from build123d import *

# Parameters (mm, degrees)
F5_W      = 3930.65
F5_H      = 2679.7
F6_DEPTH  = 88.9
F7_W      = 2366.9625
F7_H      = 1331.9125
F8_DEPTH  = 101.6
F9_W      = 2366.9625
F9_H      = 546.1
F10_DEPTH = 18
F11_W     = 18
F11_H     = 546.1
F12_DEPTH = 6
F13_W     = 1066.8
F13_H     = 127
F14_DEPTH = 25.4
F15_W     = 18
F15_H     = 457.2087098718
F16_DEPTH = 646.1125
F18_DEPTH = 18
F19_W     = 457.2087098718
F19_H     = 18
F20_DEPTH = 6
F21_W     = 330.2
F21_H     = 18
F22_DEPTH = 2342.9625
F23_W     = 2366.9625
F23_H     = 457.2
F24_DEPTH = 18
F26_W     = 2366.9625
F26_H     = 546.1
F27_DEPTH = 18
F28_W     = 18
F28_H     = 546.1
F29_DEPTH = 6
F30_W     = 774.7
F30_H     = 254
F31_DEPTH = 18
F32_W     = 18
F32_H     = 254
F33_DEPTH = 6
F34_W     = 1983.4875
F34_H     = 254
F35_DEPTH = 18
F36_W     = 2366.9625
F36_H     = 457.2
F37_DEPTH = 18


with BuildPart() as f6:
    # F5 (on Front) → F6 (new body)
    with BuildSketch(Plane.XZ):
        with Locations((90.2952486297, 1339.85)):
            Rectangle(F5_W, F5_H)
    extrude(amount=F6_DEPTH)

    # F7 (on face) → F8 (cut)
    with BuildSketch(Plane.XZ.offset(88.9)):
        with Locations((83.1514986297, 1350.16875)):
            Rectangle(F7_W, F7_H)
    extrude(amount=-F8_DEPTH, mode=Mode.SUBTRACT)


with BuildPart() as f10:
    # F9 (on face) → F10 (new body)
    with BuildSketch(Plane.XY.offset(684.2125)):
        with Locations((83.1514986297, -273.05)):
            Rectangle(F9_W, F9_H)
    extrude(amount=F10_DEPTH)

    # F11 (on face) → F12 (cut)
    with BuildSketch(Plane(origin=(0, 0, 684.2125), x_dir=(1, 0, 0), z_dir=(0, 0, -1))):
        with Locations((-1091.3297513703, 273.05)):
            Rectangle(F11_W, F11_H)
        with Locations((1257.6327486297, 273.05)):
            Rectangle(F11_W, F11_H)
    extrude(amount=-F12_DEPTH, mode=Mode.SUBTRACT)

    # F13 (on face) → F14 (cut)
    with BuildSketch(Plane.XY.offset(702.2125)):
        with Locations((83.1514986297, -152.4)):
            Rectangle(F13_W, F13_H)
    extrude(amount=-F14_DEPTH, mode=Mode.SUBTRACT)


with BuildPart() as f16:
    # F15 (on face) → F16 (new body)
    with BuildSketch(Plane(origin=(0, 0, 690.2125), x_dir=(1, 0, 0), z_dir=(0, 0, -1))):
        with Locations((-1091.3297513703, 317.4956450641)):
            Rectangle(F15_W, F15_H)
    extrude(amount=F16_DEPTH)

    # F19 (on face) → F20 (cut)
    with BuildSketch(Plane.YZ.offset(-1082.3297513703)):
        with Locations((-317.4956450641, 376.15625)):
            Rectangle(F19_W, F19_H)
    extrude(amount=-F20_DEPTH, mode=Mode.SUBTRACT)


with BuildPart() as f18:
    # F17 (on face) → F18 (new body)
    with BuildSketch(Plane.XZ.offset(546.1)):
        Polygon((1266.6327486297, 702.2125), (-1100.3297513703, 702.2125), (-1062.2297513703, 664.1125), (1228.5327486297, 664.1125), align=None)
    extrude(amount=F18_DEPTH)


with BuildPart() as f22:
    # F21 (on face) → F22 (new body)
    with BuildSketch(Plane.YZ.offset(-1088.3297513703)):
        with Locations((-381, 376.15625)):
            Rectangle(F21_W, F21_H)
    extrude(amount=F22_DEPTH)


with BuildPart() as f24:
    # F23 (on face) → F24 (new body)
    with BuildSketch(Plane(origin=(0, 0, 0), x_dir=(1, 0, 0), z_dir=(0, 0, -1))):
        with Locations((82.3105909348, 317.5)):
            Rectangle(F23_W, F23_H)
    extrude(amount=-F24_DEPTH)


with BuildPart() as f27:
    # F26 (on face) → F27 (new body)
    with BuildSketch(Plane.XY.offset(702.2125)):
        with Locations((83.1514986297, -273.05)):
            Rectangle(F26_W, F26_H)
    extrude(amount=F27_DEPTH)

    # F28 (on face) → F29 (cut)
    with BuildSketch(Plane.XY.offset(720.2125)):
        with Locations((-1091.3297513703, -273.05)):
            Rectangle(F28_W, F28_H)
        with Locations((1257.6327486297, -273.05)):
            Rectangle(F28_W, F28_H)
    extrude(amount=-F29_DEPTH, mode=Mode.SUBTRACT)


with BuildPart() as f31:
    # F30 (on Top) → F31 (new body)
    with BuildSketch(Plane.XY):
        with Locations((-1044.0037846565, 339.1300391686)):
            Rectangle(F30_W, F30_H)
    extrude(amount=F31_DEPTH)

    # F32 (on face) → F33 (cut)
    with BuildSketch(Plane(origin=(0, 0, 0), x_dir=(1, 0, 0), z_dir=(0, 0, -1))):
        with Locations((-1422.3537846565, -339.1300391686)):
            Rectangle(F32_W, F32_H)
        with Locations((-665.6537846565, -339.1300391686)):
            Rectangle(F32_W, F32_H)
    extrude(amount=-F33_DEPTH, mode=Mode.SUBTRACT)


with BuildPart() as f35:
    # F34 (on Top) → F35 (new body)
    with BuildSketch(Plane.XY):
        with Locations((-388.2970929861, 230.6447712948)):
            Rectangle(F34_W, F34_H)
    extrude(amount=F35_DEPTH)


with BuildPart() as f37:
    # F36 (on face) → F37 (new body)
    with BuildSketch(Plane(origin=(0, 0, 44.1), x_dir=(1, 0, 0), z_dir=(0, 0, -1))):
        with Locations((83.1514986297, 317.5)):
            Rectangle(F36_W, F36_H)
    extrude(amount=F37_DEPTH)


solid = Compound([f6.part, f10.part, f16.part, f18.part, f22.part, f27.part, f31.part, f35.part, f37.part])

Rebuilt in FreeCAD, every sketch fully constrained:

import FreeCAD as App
import Part
import Sketcher

V = App.Vector
Q = App.Units.Quantity


def add_polygon(sketch, points):
    """Adds a closed chain of lines whose ends are joined by coincident constraints."""
    first, n = sketch.GeometryCount, len(points)
    for a, b in zip(points, points[1:] + points[:1]):
        sketch.addGeometry(Part.LineSegment(App.Vector(*a, 0), App.Vector(*b, 0)), False)
    for i in range(n):
        sketch.addConstraint(Sketcher.Constraint("Coincident", first + i, 2, first + (i + 1) % n, 1))

doc = App.newDocument("Part")
body = doc.addObject("PartDesign::Body", "Body")

sketch1 = body.newObject("Sketcher::SketchObject", "Sketch")
sketch1.AttachmentSupport = (doc.getObject("XZ_Plane"), [""])
sketch1.MapMode = "FlatFace"
add_polygon(sketch1, [(-1875, 2680), (-1875, 0), (2056, 0), (2056, 2680)])
sketch1.addConstraint(Sketcher.Constraint("Vertical", 0))
sketch1.addConstraint(Sketcher.Constraint("Horizontal", 1))
sketch1.addConstraint(Sketcher.Constraint("Vertical", 2))
sketch1.addConstraint(Sketcher.Constraint("Horizontal", 3))
sketch1.addConstraint(Sketcher.Constraint("PointOnObject", 0, 2, -1))
sketch1.addConstraint(Sketcher.Constraint("DistanceY", 0, 2, 0, 1, Q("105.5 in")))
sketch1.addConstraint(Sketcher.Constraint("DistanceX", 1, 1, 1, 2, Q("154.75 in")))
sketch1.addConstraint(Sketcher.Constraint("DistanceX", 0, 2, -1, 1, 1875.029751))
pad1 = body.newObject("PartDesign::Pad", "Pad")
pad1.Profile = sketch1
pad1.Length = Q("3.5 in")

sketch2 = body.newObject("Sketcher::SketchObject", "Sketch001")
sketch2.AttachmentSupport = (doc.getObject("XZ_Plane"), [""])
sketch2.MapMode = "FlatFace"
sketch2.AttachmentOffset = App.Placement(V(0, 0, 3.5 * 25.4), App.Rotation())
add_polygon(sketch2, [(-1100, 2016), (-1100, 684), (1267, 684), (1267, 2016)])
sketch2.addConstraint(Sketcher.Constraint("Vertical", 0))
sketch2.addConstraint(Sketcher.Constraint("Horizontal", 1))
sketch2.addConstraint(Sketcher.Constraint("Vertical", 2))
sketch2.addConstraint(Sketcher.Constraint("Horizontal", 3))
sketch2.addConstraint(Sketcher.Constraint("DistanceX", 1, 1, 1, 2, Q("93.1875 in")))
sketch2.addConstraint(Sketcher.Constraint("DistanceY", 0, 2, 0, 1, Q("52.4375 in")))
sketch2.addConstraint(Sketcher.Constraint("DistanceY", -1, 1, 0, 2, Q("26.9375 in")))
sketch2.addConstraint(Sketcher.Constraint("DistanceX", 0, 2, -1, 1, 1100.329751))
pocket1 = body.newObject("PartDesign::Pocket", "Pocket")
pocket1.Profile = sketch2
pocket1.Length = Q("4 in")
body2 = doc.addObject("PartDesign::Body", "Body001")

sketch3 = body2.newObject("Sketcher::SketchObject", "Sketch002")
sketch3.AttachmentSupport = (doc.getObject("XY_Plane001"), [""])
sketch3.MapMode = "FlatFace"
sketch3.AttachmentOffset = App.Placement(V(0, 0, 26.9375 * 25.4), App.Rotation())
add_polygon(sketch3, [(-1100, 0), (-1100, -546), (1267, -546), (1267, 0)])
sketch3.addConstraint(Sketcher.Constraint("Vertical", 0))
sketch3.addConstraint(Sketcher.Constraint("Horizontal", 1))
sketch3.addConstraint(Sketcher.Constraint("Vertical", 2))
sketch3.addConstraint(Sketcher.Constraint("Horizontal", 3))
sketch3.addConstraint(Sketcher.Constraint("PointOnObject", 2, 2, -1))
sketch3.addConstraint(Sketcher.Constraint("DistanceY", 0, 2, 0, 1, Q("21.5 in")))
sketch3.addConstraint(Sketcher.Constraint("DistanceX", 1, 1, 1, 2, Q("93.1875 in")))
sketch3.addConstraint(Sketcher.Constraint("DistanceX", 0, 2, -1, 1, 1100.329751))
pad2 = body2.newObject("PartDesign::Pad", "Pad001")
pad2.Profile = sketch3
pad2.Length = 18

sketch4 = body2.newObject("Sketcher::SketchObject", "Sketch003")
sketch4.AttachmentSupport = (doc.getObject("XY_Plane001"), [""])
sketch4.MapMode = "FlatFace"
sketch4.AttachmentOffset = App.Placement(V(0, 0, 26.9375 * 25.4), App.Rotation())
add_polygon(sketch4, [(-1100, -546), (-1100, 0), (-1082, 0), (-1082, -546)])
add_polygon(sketch4, [(1249, -546), (1249, 0), (1267, 0), (1267, -546)])
sketch4.addConstraint(Sketcher.Constraint("Vertical", 0))
sketch4.addConstraint(Sketcher.Constraint("Horizontal", 1))
sketch4.addConstraint(Sketcher.Constraint("Vertical", 2))
sketch4.addConstraint(Sketcher.Constraint("Horizontal", 3))
sketch4.addConstraint(Sketcher.Constraint("Vertical", 4))
sketch4.addConstraint(Sketcher.Constraint("Horizontal", 5))
sketch4.addConstraint(Sketcher.Constraint("Vertical", 6))
sketch4.addConstraint(Sketcher.Constraint("Horizontal", 7))
sketch4.addConstraint(Sketcher.Constraint("PointOnObject", 0, 2, -1))
sketch4.addConstraint(Sketcher.Constraint("PointOnObject", 4, 2, -1))
sketch4.addConstraint(Sketcher.Constraint("Horizontal", 3, 2, 6, 2))
sketch4.addConstraint(Sketcher.Constraint("Equal", 3, 5))
sketch4.addConstraint(Sketcher.Constraint("DistanceY", 0, 1, 0, 2, Q("21.5 in")))
sketch4.addConstraint(Sketcher.Constraint("DistanceX", 0, 2, 5, 2, Q("93.1875 in")))
sketch4.addConstraint(Sketcher.Constraint("DistanceX", 1, 1, 1, 2, 18.0))
sketch4.addConstraint(Sketcher.Constraint("DistanceX", 0, 2, -1, 1, 1100.329751))
pocket2 = body2.newObject("PartDesign::Pocket", "Pocket001")
pocket2.Profile = sketch4
pocket2.Length = 6
pocket2.Reversed = True

sketch5 = body2.newObject("Sketcher::SketchObject", "Sketch004")
sketch5.AttachmentSupport = (doc.getObject("XY_Plane001"), [""])
sketch5.MapMode = "FlatFace"
sketch5.AttachmentOffset = App.Placement(V(0, 0, 702.2125), App.Rotation())
add_polygon(sketch5, [(-450, -89), (-450, -216), (617, -216), (617, -89)])
sketch5.addConstraint(Sketcher.Constraint("Vertical", 0))
sketch5.addConstraint(Sketcher.Constraint("Horizontal", 1))
sketch5.addConstraint(Sketcher.Constraint("Vertical", 2))
sketch5.addConstraint(Sketcher.Constraint("Horizontal", 3))
sketch5.addConstraint(Sketcher.Constraint("DistanceX", 1, 1, 1, 2, Q("42 in")))
sketch5.addConstraint(Sketcher.Constraint("DistanceY", 0, 2, 0, 1, Q("5 in")))
sketch5.addConstraint(Sketcher.Constraint("DistanceY", 0, 2, -1, 1, Q("8.5 in")))
sketch5.addConstraint(Sketcher.Constraint("DistanceX", 0, 2, -1, 1, 450.248501))
pocket3 = body2.newObject("PartDesign::Pocket", "Pocket002")
pocket3.Profile = sketch5
pocket3.Length = Q("1 in")
body3 = doc.addObject("PartDesign::Body", "Body002")

sketch6 = body3.newObject("Sketcher::SketchObject", "Sketch005")
sketch6.AttachmentSupport = (doc.getObject("XY_Plane002"), [""])
sketch6.MapMode = "FlatFace"
sketch6.AttachmentOffset = App.Placement(V(0, 0, 690.2125), App.Rotation())
add_polygon(sketch6, [(-1100, -546), (-1100, -89), (-1082, -89), (-1082, -546)])
sketch6.addConstraint(Sketcher.Constraint("Vertical", 0))
sketch6.addConstraint(Sketcher.Constraint("Horizontal", 1))
sketch6.addConstraint(Sketcher.Constraint("Vertical", 2))
sketch6.addConstraint(Sketcher.Constraint("Horizontal", 3))
sketch6.addConstraint(Sketcher.Constraint("DistanceY", 2, 2, -1, 1, Q("21.5 in")))
sketch6.addConstraint(Sketcher.Constraint("DistanceX", 1, 1, 1, 2, 18.0))
sketch6.addConstraint(Sketcher.Constraint("DistanceY", 0, 1, 0, 2, 457.20871))
sketch6.addConstraint(Sketcher.Constraint("DistanceX", 0, 2, -1, 1, 1100.329751))
pad3 = body3.newObject("PartDesign::Pad", "Pad002")
pad3.Profile = sketch6
pad3.Length = Q("25.4375 in")
pad3.Reversed = True

sketch7 = body3.newObject("Sketcher::SketchObject", "Sketch006")
sketch7.AttachmentSupport = (doc.getObject("YZ_Plane002"), [""])
sketch7.MapMode = "FlatFace"
sketch7.AttachmentOffset = App.Placement(V(0, 0, -1082.329751), App.Rotation())
add_polygon(sketch7, [(-546, 385), (-546, 367), (-89, 367), (-89, 385)])
sketch7.addConstraint(Sketcher.Constraint("Vertical", 0))
sketch7.addConstraint(Sketcher.Constraint("Horizontal", 1))
sketch7.addConstraint(Sketcher.Constraint("Vertical", 2))
sketch7.addConstraint(Sketcher.Constraint("Horizontal", 3))
sketch7.addConstraint(Sketcher.Constraint("DistanceX", 0, 2, -1, 1, Q("21.5 in")))
sketch7.addConstraint(Sketcher.Constraint("DistanceY", 0, 2, 0, 1, 18.0))
sketch7.addConstraint(Sketcher.Constraint("DistanceX", 1, 1, 1, 2, 457.20871))
sketch7.addConstraint(Sketcher.Constraint("DistanceY", -1, 1, 0, 2, 367.15625))
pocket4 = body3.newObject("PartDesign::Pocket", "Pocket003")
pocket4.Profile = sketch7
pocket4.Length = 6
body4 = doc.addObject("PartDesign::Body", "Body003")

sketch8 = body4.newObject("Sketcher::SketchObject", "Sketch007")
sketch8.AttachmentSupport = (doc.getObject("XZ_Plane003"), [""])
sketch8.MapMode = "FlatFace"
sketch8.AttachmentOffset = App.Placement(V(0, 0, 21.5 * 25.4), App.Rotation())
add_polygon(sketch8, [(1267, 702), (-1100, 702), (-1062, 664), (1229, 664)])
sketch8.addConstraint(Sketcher.Constraint("Horizontal", 0))
sketch8.addConstraint(Sketcher.Constraint("Horizontal", 2))
sketch8.addConstraint(Sketcher.Constraint("Perpendicular", 1, 3))
sketch8.addConstraint(Sketcher.Constraint("Equal", 1, 3))
sketch8.addConstraint(Sketcher.Constraint("DistanceX", 0, 2, 1, 2, Q("1.5 in")))
sketch8.addConstraint(Sketcher.Constraint("DistanceX", 0, 2, 0, 1, Q("93.1875 in")))
sketch8.addConstraint(Sketcher.Constraint("DistanceY", -1, 1, 0, 2, 702.2125))
sketch8.addConstraint(Sketcher.Constraint("DistanceX", 0, 2, -1, 1, 1100.329751))
pad4 = body4.newObject("PartDesign::Pad", "Pad003")
pad4.Profile = sketch8
pad4.Length = 18
body5 = doc.addObject("PartDesign::Body", "Body004")

sketch9 = body5.newObject("Sketcher::SketchObject", "Sketch008")
sketch9.AttachmentSupport = (doc.getObject("YZ_Plane004"), [""])
sketch9.MapMode = "FlatFace"
sketch9.AttachmentOffset = App.Placement(V(0, 0, -1088.329751), App.Rotation())
add_polygon(sketch9, [(-546, 385), (-546, 367), (-216, 367), (-216, 385)])
sketch9.addConstraint(Sketcher.Constraint("Vertical", 0))
sketch9.addConstraint(Sketcher.Constraint("Horizontal", 1))
sketch9.addConstraint(Sketcher.Constraint("Vertical", 2))
sketch9.addConstraint(Sketcher.Constraint("Horizontal", 3))
sketch9.addConstraint(Sketcher.Constraint("DistanceX", 1, 1, 1, 2, Q("13 in")))
sketch9.addConstraint(Sketcher.Constraint("DistanceX", 0, 2, -1, 1, Q("21.5 in")))
sketch9.addConstraint(Sketcher.Constraint("DistanceY", 0, 2, 0, 1, 18.0))
sketch9.addConstraint(Sketcher.Constraint("DistanceY", -1, 1, 0, 2, 367.15625))
pad5 = body5.newObject("PartDesign::Pad", "Pad004")
pad5.Profile = sketch9
pad5.Length = 2342.9625
body6 = doc.addObject("PartDesign::Body", "Body005")

sketch10 = body6.newObject("Sketcher::SketchObject", "Sketch009")
sketch10.AttachmentSupport = (doc.getObject("XY_Plane005"), [""])
sketch10.MapMode = "FlatFace"
add_polygon(sketch10, [(-1101, -546), (-1101, -89), (1266, -89), (1266, -546)])
sketch10.addConstraint(Sketcher.Constraint("Vertical", 0))
sketch10.addConstraint(Sketcher.Constraint("Horizontal", 1))
sketch10.addConstraint(Sketcher.Constraint("Vertical", 2))
sketch10.addConstraint(Sketcher.Constraint("Horizontal", 3))
sketch10.addConstraint(Sketcher.Constraint("DistanceY", 0, 1, 0, 2, Q("18 in")))
sketch10.addConstraint(Sketcher.Constraint("DistanceY", 0, 2, -1, 1, Q("3.5 in")))
sketch10.addConstraint(Sketcher.Constraint("DistanceX", 1, 1, 1, 2, Q("93.1875 in")))
sketch10.addConstraint(Sketcher.Constraint("DistanceX", 0, 2, -1, 1, 1101.170659))
pad6 = body6.newObject("PartDesign::Pad", "Pad005")
pad6.Profile = sketch10
pad6.Length = 18
body7 = doc.addObject("PartDesign::Body", "Body006")

sketch11 = body7.newObject("Sketcher::SketchObject", "Sketch010")
sketch11.AttachmentSupport = (doc.getObject("XY_Plane006"), [""])
sketch11.MapMode = "FlatFace"
sketch11.AttachmentOffset = App.Placement(V(0, 0, 702.2125), App.Rotation())
add_polygon(sketch11, [(-1100, 0), (-1100, -546), (1267, -546), (1267, 0)])
sketch11.addConstraint(Sketcher.Constraint("Vertical", 0))
sketch11.addConstraint(Sketcher.Constraint("Horizontal", 1))
sketch11.addConstraint(Sketcher.Constraint("Vertical", 2))
sketch11.addConstraint(Sketcher.Constraint("Horizontal", 3))
sketch11.addConstraint(Sketcher.Constraint("PointOnObject", 2, 2, -1))
sketch11.addConstraint(Sketcher.Constraint("DistanceY", 0, 2, 0, 1, Q("21.5 in")))
sketch11.addConstraint(Sketcher.Constraint("DistanceX", 1, 1, 1, 2, Q("93.1875 in")))
sketch11.addConstraint(Sketcher.Constraint("DistanceX", 0, 2, -1, 1, 1100.329751))
pad7 = body7.newObject("PartDesign::Pad", "Pad006")
pad7.Profile = sketch11
pad7.Length = 18

sketch12 = body7.newObject("Sketcher::SketchObject", "Sketch011")
sketch12.AttachmentSupport = (doc.getObject("XY_Plane006"), [""])
sketch12.MapMode = "FlatFace"
sketch12.AttachmentOffset = App.Placement(V(0, 0, 720.2125), App.Rotation())
add_polygon(sketch12, [(-1100, 0), (-1100, -546), (-1082, -546), (-1082, 0)])
add_polygon(sketch12, [(1249, 0), (1249, -546), (1267, -546), (1267, 0)])
sketch12.addConstraint(Sketcher.Constraint("Vertical", 0))
sketch12.addConstraint(Sketcher.Constraint("Horizontal", 1))
sketch12.addConstraint(Sketcher.Constraint("Vertical", 2))
sketch12.addConstraint(Sketcher.Constraint("Horizontal", 3))
sketch12.addConstraint(Sketcher.Constraint("Vertical", 4))
sketch12.addConstraint(Sketcher.Constraint("Horizontal", 5))
sketch12.addConstraint(Sketcher.Constraint("Vertical", 6))
sketch12.addConstraint(Sketcher.Constraint("Horizontal", 7))
sketch12.addConstraint(Sketcher.Constraint("PointOnObject", 2, 2, -1))
sketch12.addConstraint(Sketcher.Constraint("PointOnObject", 6, 2, -1))
sketch12.addConstraint(Sketcher.Constraint("Horizontal", 1, 2, 4, 2))
sketch12.addConstraint(Sketcher.Constraint("Equal", 3, 5))
sketch12.addConstraint(Sketcher.Constraint("DistanceY", 0, 2, 0, 1, Q("21.5 in")))
sketch12.addConstraint(Sketcher.Constraint("DistanceX", 0, 2, 5, 2, Q("93.1875 in")))
sketch12.addConstraint(Sketcher.Constraint("DistanceX", 1, 1, 1, 2, 18.0))
sketch12.addConstraint(Sketcher.Constraint("DistanceX", 0, 2, -1, 1, 1100.329751))
pocket5 = body7.newObject("PartDesign::Pocket", "Pocket004")
pocket5.Profile = sketch12
pocket5.Length = 6
body8 = doc.addObject("PartDesign::Body", "Body007")

sketch13 = body8.newObject("Sketcher::SketchObject", "Sketch012")
sketch13.AttachmentSupport = (doc.getObject("XY_Plane007"), [""])
sketch13.MapMode = "FlatFace"
add_polygon(sketch13, [(-1431, 466), (-1431, 212), (-657, 212), (-657, 466)])
sketch13.addConstraint(Sketcher.Constraint("Vertical", 0))
sketch13.addConstraint(Sketcher.Constraint("Horizontal", 1))
sketch13.addConstraint(Sketcher.Constraint("Vertical", 2))
sketch13.addConstraint(Sketcher.Constraint("Horizontal", 3))
sketch13.addConstraint(Sketcher.Constraint("DistanceY", 0, 2, 0, 1, Q("10 in")))
sketch13.addConstraint(Sketcher.Constraint("DistanceX", 1, 1, 1, 2, Q("30.5 in")))
sketch13.addConstraint(Sketcher.Constraint("DistanceY", -1, 1, 0, 2, 212.130039))
sketch13.addConstraint(Sketcher.Constraint("DistanceX", 0, 2, -1, 1, 1431.353785))
pad8 = body8.newObject("PartDesign::Pad", "Pad007")
pad8.Profile = sketch13
pad8.Length = 18

sketch14 = body8.newObject("Sketcher::SketchObject", "Sketch013")
sketch14.AttachmentSupport = (doc.getObject("XY_Plane007"), [""])
sketch14.MapMode = "FlatFace"
add_polygon(sketch14, [(-1431, 212), (-1431, 466), (-1413, 466), (-1413, 212)])
add_polygon(sketch14, [(-675, 212), (-675, 466), (-657, 466), (-657, 212)])
sketch14.addConstraint(Sketcher.Constraint("Vertical", 0))
sketch14.addConstraint(Sketcher.Constraint("Horizontal", 1))
sketch14.addConstraint(Sketcher.Constraint("Vertical", 2))
sketch14.addConstraint(Sketcher.Constraint("Horizontal", 3))
sketch14.addConstraint(Sketcher.Constraint("Vertical", 4))
sketch14.addConstraint(Sketcher.Constraint("Horizontal", 5))
sketch14.addConstraint(Sketcher.Constraint("Vertical", 6))
sketch14.addConstraint(Sketcher.Constraint("Horizontal", 7))
sketch14.addConstraint(Sketcher.Constraint("Horizontal", 1, 2, 4, 2))
sketch14.addConstraint(Sketcher.Constraint("Horizontal", 3, 2, 6, 2))
sketch14.addConstraint(Sketcher.Constraint("Equal", 3, 5))
sketch14.addConstraint(Sketcher.Constraint("DistanceY", 0, 1, 0, 2, Q("10 in")))
sketch14.addConstraint(Sketcher.Constraint("DistanceX", 0, 2, 5, 2, Q("30.5 in")))
sketch14.addConstraint(Sketcher.Constraint("DistanceX", 1, 1, 1, 2, 18.0))
sketch14.addConstraint(Sketcher.Constraint("DistanceY", -1, 1, 0, 2, 466.130039))
sketch14.addConstraint(Sketcher.Constraint("DistanceX", 0, 2, -1, 1, 1431.353785))
pocket6 = body8.newObject("PartDesign::Pocket", "Pocket005")
pocket6.Profile = sketch14
pocket6.Length = 6
pocket6.Reversed = True
body9 = doc.addObject("PartDesign::Body", "Body008")

sketch15 = body9.newObject("Sketcher::SketchObject", "Sketch014")
sketch15.AttachmentSupport = (doc.getObject("XY_Plane008"), [""])
sketch15.MapMode = "FlatFace"
add_polygon(sketch15, [(-1380, 358), (-1380, 104), (603, 104), (603, 358)])
sketch15.addConstraint(Sketcher.Constraint("Vertical", 0))
sketch15.addConstraint(Sketcher.Constraint("Horizontal", 1))
sketch15.addConstraint(Sketcher.Constraint("Vertical", 2))
sketch15.addConstraint(Sketcher.Constraint("Horizontal", 3))
sketch15.addConstraint(Sketcher.Constraint("DistanceY", 0, 2, 0, 1, Q("10 in")))
sketch15.addConstraint(Sketcher.Constraint("DistanceX", 1, 1, 1, 2, 1983.4875))
sketch15.addConstraint(Sketcher.Constraint("DistanceY", -1, 1, 0, 2, 103.644771))
sketch15.addConstraint(Sketcher.Constraint("DistanceX", 0, 2, -1, 1, 1380.040843))
pad9 = body9.newObject("PartDesign::Pad", "Pad008")
pad9.Profile = sketch15
pad9.Length = 18
body10 = doc.addObject("PartDesign::Body", "Body009")

sketch16 = body10.newObject("Sketcher::SketchObject", "Sketch015")
sketch16.AttachmentSupport = (doc.getObject("XY_Plane009"), [""])
sketch16.MapMode = "FlatFace"
sketch16.AttachmentOffset = App.Placement(V(0, 0, 44.1), App.Rotation())
add_polygon(sketch16, [(-1100, -546), (-1100, -89), (1267, -89), (1267, -546)])
sketch16.addConstraint(Sketcher.Constraint("Vertical", 0))
sketch16.addConstraint(Sketcher.Constraint("Horizontal", 1))
sketch16.addConstraint(Sketcher.Constraint("Vertical", 2))
sketch16.addConstraint(Sketcher.Constraint("Horizontal", 3))
sketch16.addConstraint(Sketcher.Constraint("DistanceY", 0, 1, 0, 2, Q("18 in")))
sketch16.addConstraint(Sketcher.Constraint("DistanceY", 0, 2, -1, 1, Q("3.5 in")))
sketch16.addConstraint(Sketcher.Constraint("DistanceX", 1, 1, 1, 2, Q("93.1875 in")))
sketch16.addConstraint(Sketcher.Constraint("DistanceX", 0, 2, -1, 1, 1100.329751))
pad10 = body10.newObject("PartDesign::Pad", "Pad009")
pad10.Profile = sketch16
pad10.Length = 18
pad10.Reversed = True
body6.Visibility = False

doc.recompute()
